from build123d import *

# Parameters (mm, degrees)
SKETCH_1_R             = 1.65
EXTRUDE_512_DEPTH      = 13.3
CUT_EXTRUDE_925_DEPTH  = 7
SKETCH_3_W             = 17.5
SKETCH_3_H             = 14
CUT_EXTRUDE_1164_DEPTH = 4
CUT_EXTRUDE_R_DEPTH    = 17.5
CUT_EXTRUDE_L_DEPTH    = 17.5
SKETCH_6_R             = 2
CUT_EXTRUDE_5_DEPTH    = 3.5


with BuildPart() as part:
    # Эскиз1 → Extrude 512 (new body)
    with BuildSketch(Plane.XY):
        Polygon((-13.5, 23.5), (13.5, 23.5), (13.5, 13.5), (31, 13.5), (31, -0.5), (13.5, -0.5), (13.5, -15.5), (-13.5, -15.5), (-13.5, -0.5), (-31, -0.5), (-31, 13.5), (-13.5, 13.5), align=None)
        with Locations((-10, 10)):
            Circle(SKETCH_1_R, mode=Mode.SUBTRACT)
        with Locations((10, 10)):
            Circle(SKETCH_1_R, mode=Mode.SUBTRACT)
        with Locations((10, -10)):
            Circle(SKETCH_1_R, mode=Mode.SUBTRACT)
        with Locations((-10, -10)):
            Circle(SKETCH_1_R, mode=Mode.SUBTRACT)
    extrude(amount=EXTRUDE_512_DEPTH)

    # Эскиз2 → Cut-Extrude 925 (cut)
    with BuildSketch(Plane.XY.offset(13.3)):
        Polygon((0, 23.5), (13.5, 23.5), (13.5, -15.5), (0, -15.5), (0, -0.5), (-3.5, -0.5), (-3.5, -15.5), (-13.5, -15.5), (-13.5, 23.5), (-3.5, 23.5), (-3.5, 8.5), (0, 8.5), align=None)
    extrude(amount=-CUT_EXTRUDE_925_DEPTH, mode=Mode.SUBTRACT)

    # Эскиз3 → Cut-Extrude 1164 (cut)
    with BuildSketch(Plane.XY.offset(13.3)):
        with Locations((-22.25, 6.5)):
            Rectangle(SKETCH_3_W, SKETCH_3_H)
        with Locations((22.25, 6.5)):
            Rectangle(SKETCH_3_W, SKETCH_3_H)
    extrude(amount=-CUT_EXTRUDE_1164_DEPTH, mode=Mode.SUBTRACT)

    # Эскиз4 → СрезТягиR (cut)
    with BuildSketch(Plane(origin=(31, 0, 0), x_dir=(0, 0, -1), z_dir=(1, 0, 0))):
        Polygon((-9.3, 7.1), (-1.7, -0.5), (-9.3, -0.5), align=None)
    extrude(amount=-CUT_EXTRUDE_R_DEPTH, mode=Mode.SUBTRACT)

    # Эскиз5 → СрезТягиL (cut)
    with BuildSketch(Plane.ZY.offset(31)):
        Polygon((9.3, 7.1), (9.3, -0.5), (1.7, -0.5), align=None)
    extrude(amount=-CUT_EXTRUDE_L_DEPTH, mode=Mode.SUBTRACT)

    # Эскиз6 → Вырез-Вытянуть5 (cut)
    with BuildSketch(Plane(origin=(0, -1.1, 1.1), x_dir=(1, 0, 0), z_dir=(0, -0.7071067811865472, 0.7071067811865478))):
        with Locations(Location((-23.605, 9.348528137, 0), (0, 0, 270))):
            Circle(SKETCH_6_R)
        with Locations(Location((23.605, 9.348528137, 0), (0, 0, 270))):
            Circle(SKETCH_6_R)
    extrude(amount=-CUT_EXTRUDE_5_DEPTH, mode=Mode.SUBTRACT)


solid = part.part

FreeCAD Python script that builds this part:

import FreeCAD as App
import Part
import Sketcher

V = App.Vector

doc = App.newDocument("Part")
body = doc.addObject("PartDesign::Body", "Body")

sketch1 = doc.addObject("Sketcher::SketchObject", "Sketch")
body.addObject(sketch1)
sketch1.AttachmentSupport = (doc.XY_Plane, [""])
sketch1.MapMode = "FlatFace"
sketch1.addGeometry(Part.LineSegment(V(13.5, 23.5, 0), V(-13.5, 23.5, 0)), False)
sketch1.addGeometry(Part.LineSegment(V(-13.5, 23.5, 0), V(-13.5, 13.5, 0)), False)
sketch1.addGeometry(Part.LineSegment(V(-13.5, 13.5, 0), V(-31, 13.5, 0)), False)
sketch1.addGeometry(Part.LineSegment(V(-31, 13.5, 0), V(-31, -0.5, 0)), False)
sketch1.addGeometry(Part.LineSegment(V(-31, -0.5, 0), V(-13.5, -0.5, 0)), False)
sketch1.addGeometry(Part.LineSegment(V(-13.5, -0.5, 0), V(-13.5, -15.5, 0)), False)
sketch1.addGeometry(Part.LineSegment(V(-13.5, -15.5, 0), V(13.5, -15.5, 0)), False)
sketch1.addGeometry(Part.LineSegment(V(13.5, -15.5, 0), V(13.5, -0.5, 0)), False)
sketch1.addGeometry(Part.LineSegment(V(13.5, -0.5, 0), V(31, -0.5, 0)), False)
sketch1.addGeometry(Part.LineSegment(V(31, -0.5, 0), V(31, 13.5, 0)), False)
sketch1.addGeometry(Part.LineSegment(V(31, 13.5, 0), V(13.5, 13.5, 0)), False)
sketch1.addGeometry(Part.LineSegment(V(13.5, 13.5, 0), V(13.5, 23.5, 0)), False)
sketch1.addGeometry(Part.Circle(V(10, -10, 0), V(0, 0, 1), 1.65), False)
sketch1.addGeometry(Part.Circle(V(-10, -10, 0), V(0, 0, 1), 1.65), False)
sketch1.addGeometry(Part.Circle(V(10, 10, 0), V(0, 0, 1), 1.65), False)
sketch1.addGeometry(Part.Circle(V(-10, 10, 0), V(0, 0, 1), 1.65), False)
sketch1.addConstraint(Sketcher.Constraint("Coincident", 0, 2, 1, 1))
sketch1.addConstraint(Sketcher.Constraint("Coincident", 1, 2, 2, 1))
sketch1.addConstraint(Sketcher.Constraint("Coincident", 2, 2, 3, 1))
sketch1.addConstraint(Sketcher.Constraint("Coincident", 3, 2, 4, 1))
sketch1.addConstraint(Sketcher.Constraint("Coincident", 4, 2, 5, 1))
sketch1.addConstraint(Sketcher.Constraint("Coincident", 5, 2, 6, 1))
sketch1.addConstraint(Sketcher.Constraint("Coincident", 6, 2, 7, 1))
sketch1.addConstraint(Sketcher.Constraint("Coincident", 7, 2, 8, 1))
sketch1.addConstraint(Sketcher.Constraint("Coincident", 8, 2, 9, 1))
sketch1.addConstraint(Sketcher.Constraint("Coincident", 9, 2, 10, 1))
sketch1.addConstraint(Sketcher.Constraint("Coincident", 10, 2, 11, 1))
sketch1.addConstraint(Sketcher.Constraint("Coincident", 11, 2, 0, 1))
sketch1.addConstraint(Sketcher.Constraint("Horizontal", 0))
sketch1.addConstraint(Sketcher.Constraint("Vertical", 1))
sketch1.addConstraint(Sketcher.Constraint("Horizontal", 2))
sketch1.addConstraint(Sketcher.Constraint("Vertical", 3))
sketch1.addConstraint(Sketcher.Constraint("Horizontal", 4))
sketch1.addConstraint(Sketcher.Constraint("Vertical", 5))
sketch1.addConstraint(Sketcher.Constraint("Horizontal", 6))
sketch1.addConstraint(Sketcher.Constraint("Vertical", 7))
sketch1.addConstraint(Sketcher.Constraint("Horizontal", 8))
sketch1.addConstraint(Sketcher.Constraint("Vertical", 9))
sketch1.addConstraint(Sketcher.Constraint("Horizontal", 10))
sketch1.addConstraint(Sketcher.Constraint("Vertical", 11))
sketch1.addConstraint(Sketcher.Constraint("Equal", 12, 13))
sketch1.addConstraint(Sketcher.Constraint("Equal", 13, 14))
sketch1.addConstraint(Sketcher.Constraint("Equal", 14, 15))
sketch1.addConstraint(Sketcher.Constraint("Symmetric", 13, 3, 14, 3, -1, 1))
sketch1.addConstraint(Sketcher.Constraint("Symmetric", 12, 3, 15, 3, -1, 1))
sketch1.addConstraint(Sketcher.Constraint("Symmetric", 12, 3, 13, 3, -2))
sketch1.addConstraint(Sketcher.Constraint("Symmetric", 4, 2, 7, 2, -2))
sketch1.addConstraint(Sketcher.Constraint("Symmetric", 2, 2, 9, 2, -2))
sketch1.addConstraint(Sketcher.Constraint("Vertical", 1, 2, 4, 2))
sketch1.addConstraint(Sketcher.Constraint("Vertical", 7, 2, 10, 2))
sketch1.addConstraint(Sketcher.Constraint("Diameter", 12, 3.3))
sketch1.addConstraint(Sketcher.Constraint("DistanceX", 0, 2, 0, 1, 27.0))
sketch1.addConstraint(Sketcher.Constraint("DistanceY", 1, 2, 1, 1, 10.0))
sketch1.addConstraint(Sketcher.Constraint("DistanceY", 3, 2, 3, 1, 14.0))
sketch1.addConstraint(Sketcher.Constraint("DistanceY", 5, 2, 5, 1, 15.0))
sketch1.addConstraint(Sketcher.Constraint("DistanceX", 2, 2, 2, 1, 17.5))
sketch1.addConstraint(Sketcher.Constraint("DistanceX", -1, 1, 12, 3, 10.0))
sketch1.addConstraint(Sketcher.Constraint("DistanceY", 12, 3, -1, 1, 10.0))
sketch1.addConstraint(Sketcher.Constraint("DistanceY", -1, 1, 0, 2, 23.5))
pad1 = doc.addObject("PartDesign::Pad", "Pad")
body.addObject(pad1)
pad1.Profile = sketch1
pad1.Length = 13.3

sketch2 = doc.addObject("Sketcher::SketchObject", "Sketch001")
body.addObject(sketch2)
sketch2.AttachmentSupport = (doc.XY_Plane, [""])
sketch2.MapMode = "FlatFace"
sketch2.AttachmentOffset = App.Placement(V(0, 0, 13.3), App.Rotation())
sketch2.addGeometry(Part.LineSegment(V(13.5, 23.5, 0), V(0, 23.5, 0)), False)
sketch2.addGeometry(Part.LineSegment(V(0, 23.5, 0), V(0, 8.5, 0)), False)
sketch2.addGeometry(Part.LineSegment(V(0, 8.5, 0), V(-3.5, 8.5, 0)), False)
sketch2.addGeometry(Part.LineSegment(V(-3.5, 8.5, 0), V(-3.5, 23.5, 0)), False)
sketch2.addGeometry(Part.LineSegment(V(-3.5, 23.5, 0), V(-13.5, 23.5, 0)), False)
sketch2.addGeometry(Part.LineSegment(V(-13.5, 23.5, 0), V(-13.5, -15.5, 0)), False)
sketch2.addGeometry(Part.LineSegment(V(-13.5, -15.5, 0), V(-3.5, -15.5, 0)), False)
sketch2.addGeometry(Part.LineSegment(V(-3.5, -15.5, 0), V(-3.5, -0.5, 0)), False)
sketch2.addGeometry(Part.LineSegment(V(-3.5, -0.5, 0), V(0, -0.5, 0)), False)
sketch2.addGeometry(Part.LineSegment(V(0, -0.5, 0), V(0, -15.5, 0)), False)
sketch2.addGeometry(Part.LineSegment(V(0, -15.5, 0), V(13.5, -15.5, 0)), False)
sketch2.addGeometry(Part.LineSegment(V(13.5, -15.5, 0), V(13.5, 23.5, 0)), False)
sketch2.addConstraint(Sketcher.Constraint("Coincident", 0, 2, 1, 1))
sketch2.addConstraint(Sketcher.Constraint("Coincident", 1, 2, 2, 1))
sketch2.addConstraint(Sketcher.Constraint("Coincident", 2, 2, 3, 1))
sketch2.addConstraint(Sketcher.Constraint("Coincident", 3, 2, 4, 1))
sketch2.addConstraint(Sketcher.Constraint("Coincident", 4, 2, 5, 1))
sketch2.addConstraint(Sketcher.Constraint("Coincident", 5, 2, 6, 1))
sketch2.addConstraint(Sketcher.Constraint("Coincident", 6, 2, 7, 1))
sketch2.addConstraint(Sketcher.Constraint("Coincident", 7, 2, 8, 1))
sketch2.addConstraint(Sketcher.Constraint("Coincident", 8, 2, 9, 1))
sketch2.addConstraint(Sketcher.Constraint("Coincident", 9, 2, 10, 1))
sketch2.addConstraint(Sketcher.Constraint("Coincident", 10, 2, 11, 1))
sketch2.addConstraint(Sketcher.Constraint("Coincident", 11, 2, 0, 1))
sketch2.addConstraint(Sketcher.Constraint("Horizontal", 0))
sketch2.addConstraint(Sketcher.Constraint("Vertical", 1))
sketch2.addConstraint(Sketcher.Constraint("Horizontal", 2))
sketch2.addConstraint(Sketcher.Constraint("Vertical", 3))
sketch2.addConstraint(Sketcher.Constraint("Horizontal", 4))
sketch2.addConstraint(Sketcher.Constraint("Vertical", 5))
sketch2.addConstraint(Sketcher.Constraint("Horizontal", 6))
sketch2.addConstraint(Sketcher.Constraint("Vertical", 7))
sketch2.addConstraint(Sketcher.Constraint("Horizontal", 8))
sketch2.addConstraint(Sketcher.Constraint("Vertical", 9))
sketch2.addConstraint(Sketcher.Constraint("Horizontal", 10))
sketch2.addConstraint(Sketcher.Constraint("Vertical", 11))
sketch2.addConstraint(Sketcher.Constraint("Symmetric", 5, 2, 10, 2, -2))
sketch2.addConstraint(Sketcher.Constraint("PointOnObject", 0, 2, -2))
sketch2.addConstraint(Sketcher.Constraint("PointOnObject", 8, 2, -2))
sketch2.addConstraint(Sketcher.Constraint("Horizontal", 0, 2, 3, 2))
sketch2.addConstraint(Sketcher.Constraint("Vertical", 3, 2, 6, 2))
sketch2.addConstraint(Sketcher.Constraint("Equal", 3, 7))
sketch2.addConstraint(Sketcher.Constraint("DistanceX", 4, 2, 4, 1, 10.0))
sketch2.addConstraint(Sketcher.Constraint("DistanceY", 1, 2, 1, 1, 15.0))
sketch2.addConstraint(Sketcher.Constraint("DistanceY", 5, 2, 5, 1, 39.0))
sketch2.addConstraint(Sketcher.Constraint("DistanceX", 0, 2, 0, 1, 13.5))
sketch2.addConstraint(Sketcher.Constraint("DistanceY", -1, 1, 0, 2, 23.5))
pocket1 = doc.addObject("PartDesign::Pocket", "Pocket")
body.addObject(pocket1)
pocket1.Profile = sketch2
pocket1.Length = 7

sketch3 = doc.addObject("Sketcher::SketchObject", "Sketch002")
body.addObject(sketch3)
sketch3.AttachmentSupport = (doc.XY_Plane, [""])
sketch3.MapMode = "FlatFace"
sketch3.AttachmentOffset = App.Placement(V(0, 0, 13.3), App.Rotation())
sketch3.addGeometry(Part.LineSegment(V(-31, 13.5, 0), V(-31, -0.5, 0)), False)
sketch3.addGeometry(Part.LineSegment(V(-31, -0.5, 0), V(-13.5, -0.5, 0)), False)
sketch3.addGeometry(Part.LineSegment(V(-13.5, -0.5, 0), V(-13.5, 13.5, 0)), False)
sketch3.addGeometry(Part.LineSegment(V(-13.5, 13.5, 0), V(-31, 13.5, 0)), False)
sketch3.addGeometry(Part.LineSegment(V(13.5, 13.5, 0), V(13.5, -0.5, 0)), False)
sketch3.addGeometry(Part.LineSegment(V(13.5, -0.5, 0), V(31, -0.5, 0)), False)
sketch3.addGeometry(Part.LineSegment(V(31, -0.5, 0), V(31, 13.5, 0)), False)
sketch3.addGeometry(Part.LineSegment(V(31, 13.5, 0), V(13.5, 13.5, 0)), False)
sketch3.addConstraint(Sketcher.Constraint("Coincident", 0, 2, 1, 1))
sketch3.addConstraint(Sketcher.Constraint("Coincident", 1, 2, 2, 1))
sketch3.addConstraint(Sketcher.Constraint("Coincident", 2, 2, 3, 1))
sketch3.addConstraint(Sketcher.Constraint("Coincident", 3, 2, 0, 1))
sketch3.addConstraint(Sketcher.Constraint("Coincident", 4, 2, 5, 1))
sketch3.addConstraint(Sketcher.Constraint("Coincident", 5, 2, 6, 1))
sketch3.addConstraint(Sketcher.Constraint("Coincident", 6, 2, 7, 1))
sketch3.addConstraint(Sketcher.Constraint("Coincident", 7, 2, 4, 1))
sketch3.addConstraint(Sketcher.Constraint("Vertical", 0))
sketch3.addConstraint(Sketcher.Constraint("Horizontal", 1))
sketch3.addConstraint(Sketcher.Constraint("Vertical", 2))
sketch3.addConstraint(Sketcher.Constraint("Horizontal", 3))
sketch3.addConstraint(Sketcher.Constraint("Vertical", 4))
sketch3.addConstraint(Sketcher.Constraint("Horizontal", 5))
sketch3.addConstraint(Sketcher.Constraint("Vertical", 6))
sketch3.addConstraint(Sketcher.Constraint("Horizontal", 7))
sketch3.addConstraint(Sketcher.Constraint("Symmetric", 1, 2, 4, 2, -2))
sketch3.addConstraint(Sketcher.Constraint("Symmetric", 3, 2, 6, 2, -2))
sketch3.addConstraint(Sketcher.Constraint("DistanceY", 0, 2, 0, 1, 14.0))
sketch3.addConstraint(Sketcher.Constraint("DistanceX", 1, 1, 1, 2, 17.5))
sketch3.addConstraint(Sketcher.Constraint("DistanceX", 0, 2, -1, 1, 31.0))
sketch3.addConstraint(Sketcher.Constraint("DistanceY", 0, 2, -1, 1, 0.5))
pocket2 = doc.addObject("PartDesign::Pocket", "Pocket001")
body.addObject(pocket2)
pocket2.Profile = sketch3
pocket2.Length = 4

sketch4 = doc.addObject("Sketcher::SketchObject", "Sketch003")
body.addObject(sketch4)
sketch4.AttachmentSupport = (doc.YZ_Plane, [""])
sketch4.MapMode = "FlatFace"
sketch4.AttachmentOffset = App.Placement(V(0, 0, 31), App.Rotation())
sketch4.addGeometry(Part.LineSegment(V(-0.5, 1.7, 0), V(7.1, 9.3, 0)), False)
sketch4.addGeometry(Part.LineSegment(V(7.1, 9.3, 0), V(-0.5, 9.3, 0)), False)
sketch4.addGeometry(Part.LineSegment(V(-0.5, 9.3, 0), V(-0.5, 1.7, 0)), False)
sketch4.addConstraint(Sketcher.Constraint("Coincident", 0, 2, 1, 1))
sketch4.addConstraint(Sketcher.Constraint("Coincident", 1, 2, 2, 1))
sketch4.addConstraint(Sketcher.Constraint("Coincident", 2, 2, 0, 1))
sketch4.addConstraint(Sketcher.Constraint("Horizontal", 1))
sketch4.addConstraint(Sketcher.Constraint("Vertical", 2))
sketch4.addConstraint(Sketcher.Constraint("Equal", 1, 2))
sketch4.addConstraint(Sketcher.Constraint("DistanceX", 1, 2, 1, 1, 7.6))
sketch4.addConstraint(Sketcher.Constraint("DistanceX", -1, 1, 0, 2, 7.1))
sketch4.addConstraint(Sketcher.Constraint("DistanceY", -1, 1, 0, 2, 9.3))
pocket3 = doc.addObject("PartDesign::Pocket", "Pocket002")
body.addObject(pocket3)
pocket3.Profile = sketch4
pocket3.Length = 17.5

sketch5 = doc.addObject("Sketcher::SketchObject", "Sketch004")
body.addObject(sketch5)
sketch5.AttachmentSupport = (doc.YZ_Plane, [""])
sketch5.MapMode = "FlatFace"
sketch5.AttachmentOffset = App.Placement(V(0, 0, -31), App.Rotation())
sketch5.addGeometry(Part.LineSegment(V(-0.5, 9.3, 0), V(7.1, 9.3, 0)), False)
sketch5.addGeometry(Part.LineSegment(V(7.1, 9.3, 0), V(-0.5, 1.7, 0)), False)
sketch5.addGeometry(Part.LineSegment(V(-0.5, 1.7, 0), V(-0.5, 9.3, 0)), False)
sketch5.addConstraint(Sketcher.Constraint("Coincident", 0, 2, 1, 1))
sketch5.addConstraint(Sketcher.Constraint("Coincident", 1, 2, 2, 1))
sketch5.addConstraint(Sketcher.Constraint("Coincident", 2, 2, 0, 1))
sketch5.addConstraint(Sketcher.Constraint("Horizontal", 0))
sketch5.addConstraint(Sketcher.Constraint("Vertical", 2))
sketch5.addConstraint(Sketcher.Constraint("Equal", 0, 2))
sketch5.addConstraint(Sketcher.Constraint("DistanceX", 0, 1, 0, 2, 7.6))
sketch5.addConstraint(Sketcher.Constraint("DistanceX", -1, 1, 0, 2, 7.1))
sketch5.addConstraint(Sketcher.Constraint("DistanceY", -1, 1, 0, 2, 9.3))
pocket4 = doc.addObject("PartDesign::Pocket", "Pocket003")
body.addObject(pocket4)
pocket4.Profile = sketch5
pocket4.Length = 17.5
pocket4.Reversed = True

sketch6 = doc.addObject("Sketcher::SketchObject", "Sketch005")
body.addObject(sketch6)
sketch6.Placement = App.Placement(V(0, -1.1, 1.1), App.Rotation(V(1, 0, 0), V(0, 0.707106781, 0.707106781), V(0, -0.707106781, 0.707106781), "ZXY"))
sketch6.addGeometry(Part.Circle(V(-23.605, 9.348528, 0), V(0, 0, 1), 2), False)
sketch6.addGeometry(Part.Circle(V(23.605, 9.348528, 0), V(0, 0, 1), 2), False)
sketch6.addConstraint(Sketcher.Constraint("Equal", 0, 1))
sketch6.addConstraint(Sketcher.Constraint("Symmetric", 0, 3, 1, 3, -2))
sketch6.addConstraint(Sketcher.Constraint("Diameter", 0, 4.0))
sketch6.addConstraint(Sketcher.Constraint("DistanceX", 0, 3, 1, 3, 47.21))
sketch6.addConstraint(Sketcher.Constraint("DistanceY", -1, 1, 0, 3, 9.348528))
pocket5 = doc.addObject("PartDesign::Pocket", "Pocket004")
body.addObject(pocket5)
pocket5.Profile = sketch6
pocket5.Length = 3.5

doc.recompute()
